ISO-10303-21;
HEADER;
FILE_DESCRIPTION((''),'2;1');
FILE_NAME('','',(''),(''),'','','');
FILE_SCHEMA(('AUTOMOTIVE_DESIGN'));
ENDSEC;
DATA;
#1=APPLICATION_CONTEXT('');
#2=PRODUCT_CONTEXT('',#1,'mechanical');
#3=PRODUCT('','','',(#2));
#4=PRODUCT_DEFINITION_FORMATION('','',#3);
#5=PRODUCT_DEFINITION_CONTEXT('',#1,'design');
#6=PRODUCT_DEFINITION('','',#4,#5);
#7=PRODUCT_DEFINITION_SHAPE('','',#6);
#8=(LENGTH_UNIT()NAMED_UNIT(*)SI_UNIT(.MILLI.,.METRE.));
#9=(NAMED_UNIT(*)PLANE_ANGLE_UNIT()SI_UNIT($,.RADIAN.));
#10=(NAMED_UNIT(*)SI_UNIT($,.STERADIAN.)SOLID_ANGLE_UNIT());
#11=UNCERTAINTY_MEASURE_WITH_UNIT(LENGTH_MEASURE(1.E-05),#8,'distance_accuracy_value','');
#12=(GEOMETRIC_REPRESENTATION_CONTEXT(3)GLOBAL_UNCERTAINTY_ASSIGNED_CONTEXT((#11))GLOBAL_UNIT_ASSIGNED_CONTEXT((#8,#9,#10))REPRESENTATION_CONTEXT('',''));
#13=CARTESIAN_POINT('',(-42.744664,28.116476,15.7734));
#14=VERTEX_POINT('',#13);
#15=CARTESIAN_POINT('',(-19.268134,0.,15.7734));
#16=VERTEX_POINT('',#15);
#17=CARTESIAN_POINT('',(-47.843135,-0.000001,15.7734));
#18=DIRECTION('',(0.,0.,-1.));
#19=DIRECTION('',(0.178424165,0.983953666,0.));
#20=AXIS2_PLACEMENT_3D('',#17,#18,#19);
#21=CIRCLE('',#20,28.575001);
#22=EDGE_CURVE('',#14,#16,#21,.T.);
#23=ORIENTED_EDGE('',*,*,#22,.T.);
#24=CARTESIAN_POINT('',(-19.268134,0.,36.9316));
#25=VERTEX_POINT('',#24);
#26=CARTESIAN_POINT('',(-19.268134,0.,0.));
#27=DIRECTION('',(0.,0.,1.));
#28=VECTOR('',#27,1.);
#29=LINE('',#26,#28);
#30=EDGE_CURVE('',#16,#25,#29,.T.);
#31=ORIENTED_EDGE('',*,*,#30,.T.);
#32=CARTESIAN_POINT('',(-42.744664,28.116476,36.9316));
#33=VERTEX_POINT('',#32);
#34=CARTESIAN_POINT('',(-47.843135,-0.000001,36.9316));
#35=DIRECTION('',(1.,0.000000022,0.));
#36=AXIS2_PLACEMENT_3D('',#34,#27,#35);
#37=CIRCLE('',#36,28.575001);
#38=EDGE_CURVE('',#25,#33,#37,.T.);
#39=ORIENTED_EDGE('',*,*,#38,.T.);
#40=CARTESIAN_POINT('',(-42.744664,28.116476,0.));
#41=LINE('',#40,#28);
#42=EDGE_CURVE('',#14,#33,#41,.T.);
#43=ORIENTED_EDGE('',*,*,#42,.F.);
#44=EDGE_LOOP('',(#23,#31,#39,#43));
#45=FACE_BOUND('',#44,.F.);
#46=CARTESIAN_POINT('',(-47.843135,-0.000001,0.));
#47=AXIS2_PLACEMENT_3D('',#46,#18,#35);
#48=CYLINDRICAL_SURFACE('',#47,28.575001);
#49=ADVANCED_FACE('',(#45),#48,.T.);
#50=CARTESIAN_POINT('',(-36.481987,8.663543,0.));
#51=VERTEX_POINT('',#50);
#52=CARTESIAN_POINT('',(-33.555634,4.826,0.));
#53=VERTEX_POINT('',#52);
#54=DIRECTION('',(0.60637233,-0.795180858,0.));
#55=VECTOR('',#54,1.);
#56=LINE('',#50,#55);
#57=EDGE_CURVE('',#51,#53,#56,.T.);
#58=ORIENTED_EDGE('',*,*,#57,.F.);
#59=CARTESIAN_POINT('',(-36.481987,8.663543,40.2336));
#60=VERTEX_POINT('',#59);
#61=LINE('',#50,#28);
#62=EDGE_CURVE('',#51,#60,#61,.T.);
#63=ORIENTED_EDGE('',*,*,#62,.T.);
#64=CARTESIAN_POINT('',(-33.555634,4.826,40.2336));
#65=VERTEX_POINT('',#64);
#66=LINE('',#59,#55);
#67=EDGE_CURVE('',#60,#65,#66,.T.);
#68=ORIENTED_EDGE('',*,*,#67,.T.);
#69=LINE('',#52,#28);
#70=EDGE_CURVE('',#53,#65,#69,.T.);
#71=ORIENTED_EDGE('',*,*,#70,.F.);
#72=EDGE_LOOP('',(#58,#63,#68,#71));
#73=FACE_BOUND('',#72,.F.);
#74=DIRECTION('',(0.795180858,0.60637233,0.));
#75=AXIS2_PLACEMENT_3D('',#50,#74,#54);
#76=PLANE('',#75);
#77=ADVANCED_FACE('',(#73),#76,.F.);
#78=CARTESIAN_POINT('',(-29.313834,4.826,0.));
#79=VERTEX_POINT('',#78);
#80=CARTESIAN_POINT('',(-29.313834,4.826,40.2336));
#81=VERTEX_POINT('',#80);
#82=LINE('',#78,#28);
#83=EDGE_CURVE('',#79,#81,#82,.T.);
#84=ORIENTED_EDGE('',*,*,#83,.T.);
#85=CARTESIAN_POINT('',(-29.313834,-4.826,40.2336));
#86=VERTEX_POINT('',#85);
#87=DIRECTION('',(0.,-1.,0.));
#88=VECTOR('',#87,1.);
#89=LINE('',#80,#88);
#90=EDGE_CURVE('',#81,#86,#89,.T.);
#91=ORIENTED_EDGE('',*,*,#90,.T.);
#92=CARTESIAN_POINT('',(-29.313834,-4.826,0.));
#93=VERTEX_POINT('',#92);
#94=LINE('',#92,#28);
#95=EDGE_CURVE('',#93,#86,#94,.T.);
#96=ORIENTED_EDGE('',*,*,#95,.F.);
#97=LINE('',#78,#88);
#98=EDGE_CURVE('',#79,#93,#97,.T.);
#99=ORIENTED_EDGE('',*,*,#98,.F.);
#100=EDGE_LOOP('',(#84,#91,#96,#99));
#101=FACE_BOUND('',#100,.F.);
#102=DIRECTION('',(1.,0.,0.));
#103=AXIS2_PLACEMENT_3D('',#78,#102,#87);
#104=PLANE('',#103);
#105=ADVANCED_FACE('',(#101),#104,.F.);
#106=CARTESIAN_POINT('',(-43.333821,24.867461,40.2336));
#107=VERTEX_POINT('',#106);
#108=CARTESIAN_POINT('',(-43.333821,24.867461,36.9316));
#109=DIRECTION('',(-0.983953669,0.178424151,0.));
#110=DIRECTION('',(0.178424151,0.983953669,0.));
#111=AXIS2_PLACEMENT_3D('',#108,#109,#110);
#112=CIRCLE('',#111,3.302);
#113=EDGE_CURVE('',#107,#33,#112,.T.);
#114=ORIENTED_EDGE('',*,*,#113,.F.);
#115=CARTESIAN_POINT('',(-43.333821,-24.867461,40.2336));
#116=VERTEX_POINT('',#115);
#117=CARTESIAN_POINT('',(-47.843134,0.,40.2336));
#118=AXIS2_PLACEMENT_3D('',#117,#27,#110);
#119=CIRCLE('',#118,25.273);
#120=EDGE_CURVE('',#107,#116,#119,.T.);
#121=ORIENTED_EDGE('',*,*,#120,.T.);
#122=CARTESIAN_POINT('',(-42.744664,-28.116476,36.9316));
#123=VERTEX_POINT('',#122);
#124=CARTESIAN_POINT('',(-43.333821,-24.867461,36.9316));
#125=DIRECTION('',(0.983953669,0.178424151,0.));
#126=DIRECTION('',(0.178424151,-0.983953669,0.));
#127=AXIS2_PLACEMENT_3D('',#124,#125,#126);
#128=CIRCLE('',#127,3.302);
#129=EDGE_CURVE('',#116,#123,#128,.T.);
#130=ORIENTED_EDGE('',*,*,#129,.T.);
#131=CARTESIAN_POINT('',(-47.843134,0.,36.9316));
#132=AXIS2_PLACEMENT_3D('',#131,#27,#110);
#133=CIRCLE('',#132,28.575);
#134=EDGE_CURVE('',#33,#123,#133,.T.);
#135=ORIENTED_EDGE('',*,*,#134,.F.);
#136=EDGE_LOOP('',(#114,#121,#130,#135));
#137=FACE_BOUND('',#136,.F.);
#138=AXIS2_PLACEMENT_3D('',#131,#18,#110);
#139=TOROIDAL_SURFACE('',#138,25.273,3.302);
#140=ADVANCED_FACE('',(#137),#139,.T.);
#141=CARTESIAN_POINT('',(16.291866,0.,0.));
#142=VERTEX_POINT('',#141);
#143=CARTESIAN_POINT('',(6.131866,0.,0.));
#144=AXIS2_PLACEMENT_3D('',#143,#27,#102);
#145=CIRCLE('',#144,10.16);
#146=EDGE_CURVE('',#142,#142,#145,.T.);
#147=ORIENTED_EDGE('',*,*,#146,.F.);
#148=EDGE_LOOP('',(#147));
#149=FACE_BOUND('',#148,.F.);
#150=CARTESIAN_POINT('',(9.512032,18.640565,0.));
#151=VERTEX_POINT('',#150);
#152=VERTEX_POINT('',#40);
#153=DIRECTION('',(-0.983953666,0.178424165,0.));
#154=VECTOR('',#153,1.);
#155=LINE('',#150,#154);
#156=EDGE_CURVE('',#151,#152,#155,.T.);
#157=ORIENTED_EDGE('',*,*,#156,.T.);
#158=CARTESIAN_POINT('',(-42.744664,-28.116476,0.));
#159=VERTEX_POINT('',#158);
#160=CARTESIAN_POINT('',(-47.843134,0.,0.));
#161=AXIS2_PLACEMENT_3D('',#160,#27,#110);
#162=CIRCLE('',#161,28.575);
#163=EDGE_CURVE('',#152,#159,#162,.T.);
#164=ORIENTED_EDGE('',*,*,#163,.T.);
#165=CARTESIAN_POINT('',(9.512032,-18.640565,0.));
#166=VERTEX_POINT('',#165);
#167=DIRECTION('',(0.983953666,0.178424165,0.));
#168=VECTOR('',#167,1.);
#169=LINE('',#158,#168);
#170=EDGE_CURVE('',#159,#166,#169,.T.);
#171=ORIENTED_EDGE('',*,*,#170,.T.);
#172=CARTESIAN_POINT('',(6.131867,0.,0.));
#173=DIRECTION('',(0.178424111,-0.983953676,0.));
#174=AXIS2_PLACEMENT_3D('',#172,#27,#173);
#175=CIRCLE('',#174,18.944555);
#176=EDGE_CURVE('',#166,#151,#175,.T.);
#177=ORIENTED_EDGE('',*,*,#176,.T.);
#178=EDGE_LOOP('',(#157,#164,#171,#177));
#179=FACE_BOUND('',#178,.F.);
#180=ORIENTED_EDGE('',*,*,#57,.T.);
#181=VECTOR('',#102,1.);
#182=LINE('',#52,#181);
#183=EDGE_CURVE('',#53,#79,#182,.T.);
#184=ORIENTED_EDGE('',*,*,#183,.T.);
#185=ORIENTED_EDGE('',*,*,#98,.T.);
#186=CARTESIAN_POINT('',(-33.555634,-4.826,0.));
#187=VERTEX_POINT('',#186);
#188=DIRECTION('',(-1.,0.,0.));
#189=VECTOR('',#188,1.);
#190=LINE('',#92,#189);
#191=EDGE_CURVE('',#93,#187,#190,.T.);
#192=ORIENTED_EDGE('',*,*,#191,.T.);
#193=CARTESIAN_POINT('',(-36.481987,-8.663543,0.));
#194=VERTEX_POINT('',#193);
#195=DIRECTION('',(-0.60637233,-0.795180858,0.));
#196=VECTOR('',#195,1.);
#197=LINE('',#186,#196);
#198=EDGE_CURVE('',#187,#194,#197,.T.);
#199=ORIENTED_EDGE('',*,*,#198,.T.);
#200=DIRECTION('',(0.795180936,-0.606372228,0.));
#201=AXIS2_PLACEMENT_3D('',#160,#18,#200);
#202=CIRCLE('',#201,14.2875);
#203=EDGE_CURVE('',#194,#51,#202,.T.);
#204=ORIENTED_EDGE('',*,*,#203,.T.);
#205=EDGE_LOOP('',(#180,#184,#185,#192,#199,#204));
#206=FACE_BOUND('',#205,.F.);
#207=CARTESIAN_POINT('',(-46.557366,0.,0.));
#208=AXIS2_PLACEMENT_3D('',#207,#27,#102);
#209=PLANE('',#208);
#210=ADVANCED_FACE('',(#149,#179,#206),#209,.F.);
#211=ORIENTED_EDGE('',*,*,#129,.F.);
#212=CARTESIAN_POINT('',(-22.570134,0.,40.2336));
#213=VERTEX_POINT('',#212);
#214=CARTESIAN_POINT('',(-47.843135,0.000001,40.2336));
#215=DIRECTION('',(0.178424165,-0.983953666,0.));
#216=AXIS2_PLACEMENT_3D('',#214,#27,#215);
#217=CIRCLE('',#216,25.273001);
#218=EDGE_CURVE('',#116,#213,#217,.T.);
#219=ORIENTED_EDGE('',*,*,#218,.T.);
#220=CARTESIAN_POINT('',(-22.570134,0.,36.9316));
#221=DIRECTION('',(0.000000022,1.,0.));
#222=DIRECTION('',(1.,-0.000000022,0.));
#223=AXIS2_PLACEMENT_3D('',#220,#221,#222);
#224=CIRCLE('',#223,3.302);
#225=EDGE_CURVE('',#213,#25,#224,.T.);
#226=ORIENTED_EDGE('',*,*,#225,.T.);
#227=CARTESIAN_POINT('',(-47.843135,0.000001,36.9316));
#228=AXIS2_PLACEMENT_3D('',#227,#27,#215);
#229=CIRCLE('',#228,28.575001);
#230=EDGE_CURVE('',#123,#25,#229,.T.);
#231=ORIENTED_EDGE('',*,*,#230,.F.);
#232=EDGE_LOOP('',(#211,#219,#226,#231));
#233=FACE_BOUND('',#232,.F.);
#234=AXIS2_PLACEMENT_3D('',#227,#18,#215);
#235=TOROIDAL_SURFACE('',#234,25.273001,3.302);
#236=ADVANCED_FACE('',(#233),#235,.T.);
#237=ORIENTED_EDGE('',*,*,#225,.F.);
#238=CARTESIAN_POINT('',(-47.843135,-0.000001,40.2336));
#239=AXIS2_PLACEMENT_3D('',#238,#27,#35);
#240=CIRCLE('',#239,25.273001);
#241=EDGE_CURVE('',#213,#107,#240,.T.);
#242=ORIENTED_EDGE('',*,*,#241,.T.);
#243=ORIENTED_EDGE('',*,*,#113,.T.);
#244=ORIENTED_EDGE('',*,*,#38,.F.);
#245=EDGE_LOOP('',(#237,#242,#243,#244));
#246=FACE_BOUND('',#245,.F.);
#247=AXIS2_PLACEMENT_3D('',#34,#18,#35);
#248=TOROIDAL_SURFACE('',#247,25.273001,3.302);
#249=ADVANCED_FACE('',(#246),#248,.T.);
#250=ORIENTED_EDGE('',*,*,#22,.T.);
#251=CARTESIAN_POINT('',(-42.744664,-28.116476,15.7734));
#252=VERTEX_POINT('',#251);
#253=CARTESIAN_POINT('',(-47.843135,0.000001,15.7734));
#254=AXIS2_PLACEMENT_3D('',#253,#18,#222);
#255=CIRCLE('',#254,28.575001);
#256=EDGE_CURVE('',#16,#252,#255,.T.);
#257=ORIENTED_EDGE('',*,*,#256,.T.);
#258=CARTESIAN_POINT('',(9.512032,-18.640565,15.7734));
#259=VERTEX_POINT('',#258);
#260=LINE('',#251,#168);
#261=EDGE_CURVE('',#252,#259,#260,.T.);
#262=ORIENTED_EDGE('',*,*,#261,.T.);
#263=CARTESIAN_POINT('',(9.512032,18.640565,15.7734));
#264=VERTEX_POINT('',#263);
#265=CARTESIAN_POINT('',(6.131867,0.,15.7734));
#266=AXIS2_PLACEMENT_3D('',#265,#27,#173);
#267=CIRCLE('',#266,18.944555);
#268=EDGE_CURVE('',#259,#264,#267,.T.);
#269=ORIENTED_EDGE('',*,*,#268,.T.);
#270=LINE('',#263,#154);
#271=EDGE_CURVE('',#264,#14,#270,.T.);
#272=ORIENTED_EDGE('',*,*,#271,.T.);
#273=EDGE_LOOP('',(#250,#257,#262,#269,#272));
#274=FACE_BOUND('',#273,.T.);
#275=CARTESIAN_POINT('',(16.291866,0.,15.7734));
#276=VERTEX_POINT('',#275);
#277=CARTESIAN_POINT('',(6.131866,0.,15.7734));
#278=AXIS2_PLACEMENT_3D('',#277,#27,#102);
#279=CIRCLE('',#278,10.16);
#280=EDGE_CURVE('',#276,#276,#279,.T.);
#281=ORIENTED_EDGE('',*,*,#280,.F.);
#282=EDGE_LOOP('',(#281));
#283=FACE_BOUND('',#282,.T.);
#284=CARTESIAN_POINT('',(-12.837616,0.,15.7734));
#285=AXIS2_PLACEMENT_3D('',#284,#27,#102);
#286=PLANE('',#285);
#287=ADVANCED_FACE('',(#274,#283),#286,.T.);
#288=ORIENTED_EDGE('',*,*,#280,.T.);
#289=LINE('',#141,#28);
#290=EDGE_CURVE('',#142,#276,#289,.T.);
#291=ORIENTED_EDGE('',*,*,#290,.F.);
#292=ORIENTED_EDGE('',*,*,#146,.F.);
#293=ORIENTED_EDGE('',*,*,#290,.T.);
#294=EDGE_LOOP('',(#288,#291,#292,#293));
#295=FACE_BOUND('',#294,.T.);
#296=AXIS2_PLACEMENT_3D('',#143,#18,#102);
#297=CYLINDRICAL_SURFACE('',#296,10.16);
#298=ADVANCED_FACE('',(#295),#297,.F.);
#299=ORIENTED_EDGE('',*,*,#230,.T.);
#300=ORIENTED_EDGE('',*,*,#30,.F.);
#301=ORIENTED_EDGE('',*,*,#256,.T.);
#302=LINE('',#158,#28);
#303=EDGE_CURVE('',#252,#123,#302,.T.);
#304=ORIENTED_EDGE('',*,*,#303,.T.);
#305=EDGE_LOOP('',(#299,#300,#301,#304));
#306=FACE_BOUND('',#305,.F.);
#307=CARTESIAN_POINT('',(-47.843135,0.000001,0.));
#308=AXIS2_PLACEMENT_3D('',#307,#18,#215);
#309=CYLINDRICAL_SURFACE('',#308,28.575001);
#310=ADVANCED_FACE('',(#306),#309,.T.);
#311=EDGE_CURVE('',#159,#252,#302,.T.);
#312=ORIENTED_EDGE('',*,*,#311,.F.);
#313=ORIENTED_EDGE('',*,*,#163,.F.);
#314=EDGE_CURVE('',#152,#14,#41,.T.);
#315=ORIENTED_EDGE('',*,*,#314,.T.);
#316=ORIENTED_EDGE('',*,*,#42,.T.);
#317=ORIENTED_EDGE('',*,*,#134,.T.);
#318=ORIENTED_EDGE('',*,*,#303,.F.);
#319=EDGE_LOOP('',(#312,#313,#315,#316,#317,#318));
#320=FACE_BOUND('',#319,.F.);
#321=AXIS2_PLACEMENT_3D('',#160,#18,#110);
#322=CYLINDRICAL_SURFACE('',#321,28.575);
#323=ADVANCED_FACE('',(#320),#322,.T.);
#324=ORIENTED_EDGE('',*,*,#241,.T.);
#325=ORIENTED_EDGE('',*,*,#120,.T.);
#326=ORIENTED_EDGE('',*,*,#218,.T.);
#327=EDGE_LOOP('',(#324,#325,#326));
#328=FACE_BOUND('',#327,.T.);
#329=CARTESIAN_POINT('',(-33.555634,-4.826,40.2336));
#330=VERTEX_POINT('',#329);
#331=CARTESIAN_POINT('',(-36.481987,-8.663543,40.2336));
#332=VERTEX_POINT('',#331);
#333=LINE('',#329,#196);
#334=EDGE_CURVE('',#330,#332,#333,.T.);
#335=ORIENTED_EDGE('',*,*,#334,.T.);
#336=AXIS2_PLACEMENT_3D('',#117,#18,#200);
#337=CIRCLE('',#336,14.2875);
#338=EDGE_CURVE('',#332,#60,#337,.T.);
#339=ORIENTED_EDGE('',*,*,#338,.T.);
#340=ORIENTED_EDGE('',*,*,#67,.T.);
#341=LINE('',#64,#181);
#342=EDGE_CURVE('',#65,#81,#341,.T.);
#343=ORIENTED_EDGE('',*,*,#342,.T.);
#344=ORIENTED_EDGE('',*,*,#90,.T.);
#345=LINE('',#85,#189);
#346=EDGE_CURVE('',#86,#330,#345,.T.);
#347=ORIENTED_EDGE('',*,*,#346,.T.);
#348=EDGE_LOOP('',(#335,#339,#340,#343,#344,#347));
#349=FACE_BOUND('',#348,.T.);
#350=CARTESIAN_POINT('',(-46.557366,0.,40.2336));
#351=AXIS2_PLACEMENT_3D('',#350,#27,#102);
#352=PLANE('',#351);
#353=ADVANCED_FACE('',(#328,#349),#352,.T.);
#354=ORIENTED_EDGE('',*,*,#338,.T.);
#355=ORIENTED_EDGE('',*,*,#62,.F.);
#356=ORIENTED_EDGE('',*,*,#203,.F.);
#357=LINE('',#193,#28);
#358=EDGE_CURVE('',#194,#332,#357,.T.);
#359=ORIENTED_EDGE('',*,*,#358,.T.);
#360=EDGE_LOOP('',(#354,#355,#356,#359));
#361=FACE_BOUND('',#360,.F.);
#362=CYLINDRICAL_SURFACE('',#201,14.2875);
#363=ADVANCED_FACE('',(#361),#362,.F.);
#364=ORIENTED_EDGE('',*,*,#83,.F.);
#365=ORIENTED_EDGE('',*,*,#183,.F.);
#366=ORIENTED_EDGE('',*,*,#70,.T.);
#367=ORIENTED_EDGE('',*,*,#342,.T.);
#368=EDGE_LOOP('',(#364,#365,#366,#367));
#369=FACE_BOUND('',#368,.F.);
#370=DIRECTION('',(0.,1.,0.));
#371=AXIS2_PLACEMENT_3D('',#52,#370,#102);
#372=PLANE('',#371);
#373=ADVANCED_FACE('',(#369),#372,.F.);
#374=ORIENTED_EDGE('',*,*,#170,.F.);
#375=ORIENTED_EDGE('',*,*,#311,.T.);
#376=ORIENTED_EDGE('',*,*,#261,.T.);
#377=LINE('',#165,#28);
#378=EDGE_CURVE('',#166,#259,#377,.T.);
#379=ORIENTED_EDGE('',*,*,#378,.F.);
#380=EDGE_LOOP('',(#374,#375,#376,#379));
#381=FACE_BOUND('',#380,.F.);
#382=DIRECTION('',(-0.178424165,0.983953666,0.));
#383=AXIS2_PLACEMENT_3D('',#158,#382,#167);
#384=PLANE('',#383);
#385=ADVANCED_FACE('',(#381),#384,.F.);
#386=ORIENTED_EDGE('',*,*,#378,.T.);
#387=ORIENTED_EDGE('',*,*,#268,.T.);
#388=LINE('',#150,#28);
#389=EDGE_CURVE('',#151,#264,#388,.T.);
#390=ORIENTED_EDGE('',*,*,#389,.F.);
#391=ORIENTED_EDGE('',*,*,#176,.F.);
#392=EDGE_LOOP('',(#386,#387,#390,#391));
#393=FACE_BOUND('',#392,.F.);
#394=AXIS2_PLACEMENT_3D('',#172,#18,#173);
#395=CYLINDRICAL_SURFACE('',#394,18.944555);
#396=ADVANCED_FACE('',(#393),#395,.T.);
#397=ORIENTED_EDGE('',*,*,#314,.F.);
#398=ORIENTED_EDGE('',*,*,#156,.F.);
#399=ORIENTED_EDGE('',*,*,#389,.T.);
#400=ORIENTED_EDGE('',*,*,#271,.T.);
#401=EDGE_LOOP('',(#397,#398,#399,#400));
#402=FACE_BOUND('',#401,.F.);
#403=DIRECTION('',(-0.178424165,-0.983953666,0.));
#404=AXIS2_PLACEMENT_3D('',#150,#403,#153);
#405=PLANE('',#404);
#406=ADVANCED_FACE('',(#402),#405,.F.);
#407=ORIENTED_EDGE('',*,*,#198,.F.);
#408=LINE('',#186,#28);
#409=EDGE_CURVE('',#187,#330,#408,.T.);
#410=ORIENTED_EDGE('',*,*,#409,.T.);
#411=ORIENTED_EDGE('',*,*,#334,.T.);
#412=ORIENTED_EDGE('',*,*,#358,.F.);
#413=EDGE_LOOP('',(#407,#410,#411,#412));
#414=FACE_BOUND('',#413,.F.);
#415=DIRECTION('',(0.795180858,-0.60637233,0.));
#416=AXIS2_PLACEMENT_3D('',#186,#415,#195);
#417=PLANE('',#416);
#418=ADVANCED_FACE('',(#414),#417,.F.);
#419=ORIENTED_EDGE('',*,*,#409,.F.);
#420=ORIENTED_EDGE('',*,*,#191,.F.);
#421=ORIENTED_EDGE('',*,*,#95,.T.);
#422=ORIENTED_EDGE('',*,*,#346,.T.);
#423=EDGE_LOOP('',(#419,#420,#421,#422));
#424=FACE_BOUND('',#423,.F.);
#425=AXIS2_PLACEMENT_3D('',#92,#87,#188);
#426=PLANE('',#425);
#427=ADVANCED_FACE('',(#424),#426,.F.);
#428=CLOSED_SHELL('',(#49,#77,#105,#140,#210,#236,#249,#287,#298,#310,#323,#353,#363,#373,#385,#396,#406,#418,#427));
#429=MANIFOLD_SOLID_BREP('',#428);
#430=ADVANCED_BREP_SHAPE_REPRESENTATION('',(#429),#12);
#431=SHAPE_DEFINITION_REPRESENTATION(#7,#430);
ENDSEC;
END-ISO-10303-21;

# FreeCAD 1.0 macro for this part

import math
import FreeCAD as App
import Part
import Sketcher
from FreeCAD import Vector
Q = App.Units.Quantity


def edges_at(feature, points):
    """Names of the edges that pass closest to the given points."""
    edges = feature.Shape.Edges
    near = lambda p: min(range(len(edges)), key=lambda i: edges[i].distToShape(Part.Vertex(*p))[0])
    return sorted({f"Edge{near(p) + 1}" for p in points})

doc = App.newDocument("Part")
params = doc.addObject("Spreadsheet::Sheet", "Params")
for row, (alias, value) in enumerate([
    ("sketch1_diameter", "0.8 in"),
    ("sketch1_radius", "1.125 in"),
    ("pad1_length", "0.621 in"),
    ("sketch2_radius", "1.125 in"),
    ("sketch2_radius2", "0.5625 in"),
    ("sketch2_height", "0.38 in"),
    ("sketch2_length", "0.19 in"),
    ("sketch2_width", "0.167 in"),
    ("pad2_length", "1.584 in"),
    ("fillet_radius", "0.13 in"),
], start=1):
    params.set(f"A{row}", alias)
    params.set(f"B{row}", "=" + value)
    params.setAlias(f"B{row}", alias)

body = doc.addObject("PartDesign::Body", "Body")

sketch1 = doc.addObject("Sketcher::SketchObject", "Sketch")
body.addObject(sketch1)
sketch1.AttachmentSupport = (doc.XY_Plane, [""])
sketch1.MapMode = "FlatFace"
sketch1.addGeometry([
    Part.ArcOfCircle(Part.Circle(Vector(-47.843135, -0.000001, 0), Vector(0, 0, 1), 28.575001), math.radians(0.000001), math.radians(79.722015)),
    Part.ArcOfCircle(Part.Circle(Vector(-47.843135, 0.000001, 0), Vector(0, 0, 1), 28.575001), math.radians(-79.722015), math.radians(-0.000001)),
    Part.LineSegment(Vector(-42.744664, -28.116476, 0), Vector(9.512032, -18.640565, 0)),
    Part.ArcOfCircle(Part.Circle(Vector(6.131867, 0, 0), Vector(0, 0, 1), 18.944555), math.radians(-79.722018), math.radians(79.722018)),
    Part.LineSegment(Vector(9.512032, 18.640565, 0), Vector(-42.744664, 28.116476, 0)),
    Part.Circle(Vector(6.131866, 0, 0), Vector(0, 0, 1), 10.16),
], False)
sketch1.addConstraint([
    Sketcher.Constraint("Tangent", 0, 1, 1, 2),
    Sketcher.Constraint("Tangent", 1, 1, 2, 1),
    Sketcher.Constraint("Tangent", 2, 2, 3, 1),
    Sketcher.Constraint("Tangent", 3, 2, 4, 1),
    Sketcher.Constraint("Tangent", 4, 2, 0, 2),
    Sketcher.Constraint("Coincident", 5, 3, 3, 3),
    Sketcher.Constraint("Equal", 0, 1),
    Sketcher.Constraint("Symmetric", 2, 2, 3, 2, -1),
    Sketcher.Constraint("PointOnObject", 0, 1, -1),
    Sketcher.Constraint("Diameter", 5, Q("0.8 in")),
    Sketcher.Constraint("Radius", 0, Q("1.125 in")),
    Sketcher.Constraint("DistanceX", 0, 1, 5, 3, Q("1 in")),
    Sketcher.Constraint("Radius", 3, Q("18.944555 mm")),
    Sketcher.Constraint("DistanceX", -1, 1, 3, 2, Q("9.512032 mm")),
])
sketch1.setExpression("Constraints[9]", "Params.sketch1_diameter")
sketch1.setExpression("Constraints[10]", "Params.sketch1_radius")
pad1 = doc.addObject("PartDesign::Pad", "Pad")
body.addObject(pad1)
pad1.Profile = sketch1
pad1.setExpression("Length", "Params.pad1_length")

sketch2 = doc.addObject("Sketcher::SketchObject", "Sketch001")
body.addObject(sketch2)
sketch2.AttachmentSupport = (doc.XY_Plane, [""])
sketch2.MapMode = "FlatFace"
sketch2.addGeometry([
    Part.ArcOfCircle(Part.Circle(Vector(-47.843135, 0.000001, 0), Vector(0, 0, 1), 28.575001), math.radians(-79.722015), math.radians(-0.000001)),
    Part.ArcOfCircle(Part.Circle(Vector(-47.843135, -0.000001, 0), Vector(0, 0, 1), 28.575001), math.radians(0.000001), math.radians(79.722015)),
    Part.ArcOfCircle(Part.Circle(Vector(-47.843134, 0, 0), Vector(0, 0, 1), 28.575), math.radians(79.722016), math.radians(280.277984)),
    Part.LineSegment(Vector(-33.555634, -4.826, 0), Vector(-36.481987, -8.663543, 0)),
    Part.ArcOfCircle(Part.Circle(Vector(-47.843134, 0, 0), Vector(0, 0, 1), 14.2875), math.radians(37.327651), math.radians(322.672349)),
    Part.LineSegment(Vector(-36.481987, 8.663543, 0), Vector(-33.555634, 4.826, 0)),
    Part.LineSegment(Vector(-33.555634, 4.826, 0), Vector(-29.313834, 4.826, 0)),
    Part.LineSegment(Vector(-29.313834, 4.826, 0), Vector(-29.313834, -4.826, 0)),
    Part.LineSegment(Vector(-29.313834, -4.826, 0), Vector(-33.555634, -4.826, 0)),
], False)
sketch2.addConstraint([
    Sketcher.Constraint("Tangent", 0, 2, 1, 1),
    Sketcher.Constraint("Tangent", 1, 2, 2, 1),
    Sketcher.Constraint("Tangent", 2, 2, 0, 1),
    Sketcher.Constraint("Tangent", 3, 2, 4, 2),
    Sketcher.Constraint("Tangent", 4, 1, 5, 1),
    Sketcher.Constraint("Coincident", 5, 2, 6, 1),
    Sketcher.Constraint("Coincident", 6, 2, 7, 1),
    Sketcher.Constraint("Coincident", 7, 2, 8, 1),
    Sketcher.Constraint("Coincident", 8, 2, 3, 1),
    Sketcher.Constraint("Horizontal", 6),
    Sketcher.Constraint("Vertical", 7),
    Sketcher.Constraint("Horizontal", 8),
    Sketcher.Constraint("Coincident", 4, 3, 0, 3),
    Sketcher.Constraint("Symmetric", 1, 2, 2, 2, -1),
    Sketcher.Constraint("Symmetric", 5, 2, 8, 2, -1),
    Sketcher.Constraint("PointOnObject", 0, 2, -1),
    Sketcher.Constraint("Radius", 0, Q("1.125 in")),
    Sketcher.Constraint("Radius", 4, Q("0.5625 in")),
    Sketcher.Constraint("DistanceY", 7, 2, 7, 1, Q("0.38 in")),
    Sketcher.Constraint("Distance", 3, Q("0.19 in")),
    Sketcher.Constraint("DistanceX", 6, 1, 6, 2, Q("0.167 in")),
    Sketcher.Constraint("DistanceX", 0, 3, 1, 2, Q("5.098471 mm")),
    Sketcher.Constraint("DistanceX", 0, 3, -1, 1, Q("47.843135 mm")),
])
sketch2.setExpression("Constraints[16]", "Params.sketch2_radius")
sketch2.setExpression("Constraints[17]", "Params.sketch2_radius2")
sketch2.setExpression("Constraints[18]", "Params.sketch2_height")
sketch2.setExpression("Constraints[19]", "Params.sketch2_length")
sketch2.setExpression("Constraints[20]", "Params.sketch2_width")
pad2 = doc.addObject("PartDesign::Pad", "Pad001")
body.addObject(pad2)
pad2.Profile = sketch2
pad2.setExpression("Length", "Params.pad2_length")
doc.recompute()

fillet = doc.addObject("PartDesign::Fillet", "Fillet")
body.addObject(fillet)
fillet.Base = (pad2, edges_at(pad2, [(-76.418, 0, 40.234)]))
fillet.setExpression("Radius", "Params.fillet_radius")

doc.recompute()
